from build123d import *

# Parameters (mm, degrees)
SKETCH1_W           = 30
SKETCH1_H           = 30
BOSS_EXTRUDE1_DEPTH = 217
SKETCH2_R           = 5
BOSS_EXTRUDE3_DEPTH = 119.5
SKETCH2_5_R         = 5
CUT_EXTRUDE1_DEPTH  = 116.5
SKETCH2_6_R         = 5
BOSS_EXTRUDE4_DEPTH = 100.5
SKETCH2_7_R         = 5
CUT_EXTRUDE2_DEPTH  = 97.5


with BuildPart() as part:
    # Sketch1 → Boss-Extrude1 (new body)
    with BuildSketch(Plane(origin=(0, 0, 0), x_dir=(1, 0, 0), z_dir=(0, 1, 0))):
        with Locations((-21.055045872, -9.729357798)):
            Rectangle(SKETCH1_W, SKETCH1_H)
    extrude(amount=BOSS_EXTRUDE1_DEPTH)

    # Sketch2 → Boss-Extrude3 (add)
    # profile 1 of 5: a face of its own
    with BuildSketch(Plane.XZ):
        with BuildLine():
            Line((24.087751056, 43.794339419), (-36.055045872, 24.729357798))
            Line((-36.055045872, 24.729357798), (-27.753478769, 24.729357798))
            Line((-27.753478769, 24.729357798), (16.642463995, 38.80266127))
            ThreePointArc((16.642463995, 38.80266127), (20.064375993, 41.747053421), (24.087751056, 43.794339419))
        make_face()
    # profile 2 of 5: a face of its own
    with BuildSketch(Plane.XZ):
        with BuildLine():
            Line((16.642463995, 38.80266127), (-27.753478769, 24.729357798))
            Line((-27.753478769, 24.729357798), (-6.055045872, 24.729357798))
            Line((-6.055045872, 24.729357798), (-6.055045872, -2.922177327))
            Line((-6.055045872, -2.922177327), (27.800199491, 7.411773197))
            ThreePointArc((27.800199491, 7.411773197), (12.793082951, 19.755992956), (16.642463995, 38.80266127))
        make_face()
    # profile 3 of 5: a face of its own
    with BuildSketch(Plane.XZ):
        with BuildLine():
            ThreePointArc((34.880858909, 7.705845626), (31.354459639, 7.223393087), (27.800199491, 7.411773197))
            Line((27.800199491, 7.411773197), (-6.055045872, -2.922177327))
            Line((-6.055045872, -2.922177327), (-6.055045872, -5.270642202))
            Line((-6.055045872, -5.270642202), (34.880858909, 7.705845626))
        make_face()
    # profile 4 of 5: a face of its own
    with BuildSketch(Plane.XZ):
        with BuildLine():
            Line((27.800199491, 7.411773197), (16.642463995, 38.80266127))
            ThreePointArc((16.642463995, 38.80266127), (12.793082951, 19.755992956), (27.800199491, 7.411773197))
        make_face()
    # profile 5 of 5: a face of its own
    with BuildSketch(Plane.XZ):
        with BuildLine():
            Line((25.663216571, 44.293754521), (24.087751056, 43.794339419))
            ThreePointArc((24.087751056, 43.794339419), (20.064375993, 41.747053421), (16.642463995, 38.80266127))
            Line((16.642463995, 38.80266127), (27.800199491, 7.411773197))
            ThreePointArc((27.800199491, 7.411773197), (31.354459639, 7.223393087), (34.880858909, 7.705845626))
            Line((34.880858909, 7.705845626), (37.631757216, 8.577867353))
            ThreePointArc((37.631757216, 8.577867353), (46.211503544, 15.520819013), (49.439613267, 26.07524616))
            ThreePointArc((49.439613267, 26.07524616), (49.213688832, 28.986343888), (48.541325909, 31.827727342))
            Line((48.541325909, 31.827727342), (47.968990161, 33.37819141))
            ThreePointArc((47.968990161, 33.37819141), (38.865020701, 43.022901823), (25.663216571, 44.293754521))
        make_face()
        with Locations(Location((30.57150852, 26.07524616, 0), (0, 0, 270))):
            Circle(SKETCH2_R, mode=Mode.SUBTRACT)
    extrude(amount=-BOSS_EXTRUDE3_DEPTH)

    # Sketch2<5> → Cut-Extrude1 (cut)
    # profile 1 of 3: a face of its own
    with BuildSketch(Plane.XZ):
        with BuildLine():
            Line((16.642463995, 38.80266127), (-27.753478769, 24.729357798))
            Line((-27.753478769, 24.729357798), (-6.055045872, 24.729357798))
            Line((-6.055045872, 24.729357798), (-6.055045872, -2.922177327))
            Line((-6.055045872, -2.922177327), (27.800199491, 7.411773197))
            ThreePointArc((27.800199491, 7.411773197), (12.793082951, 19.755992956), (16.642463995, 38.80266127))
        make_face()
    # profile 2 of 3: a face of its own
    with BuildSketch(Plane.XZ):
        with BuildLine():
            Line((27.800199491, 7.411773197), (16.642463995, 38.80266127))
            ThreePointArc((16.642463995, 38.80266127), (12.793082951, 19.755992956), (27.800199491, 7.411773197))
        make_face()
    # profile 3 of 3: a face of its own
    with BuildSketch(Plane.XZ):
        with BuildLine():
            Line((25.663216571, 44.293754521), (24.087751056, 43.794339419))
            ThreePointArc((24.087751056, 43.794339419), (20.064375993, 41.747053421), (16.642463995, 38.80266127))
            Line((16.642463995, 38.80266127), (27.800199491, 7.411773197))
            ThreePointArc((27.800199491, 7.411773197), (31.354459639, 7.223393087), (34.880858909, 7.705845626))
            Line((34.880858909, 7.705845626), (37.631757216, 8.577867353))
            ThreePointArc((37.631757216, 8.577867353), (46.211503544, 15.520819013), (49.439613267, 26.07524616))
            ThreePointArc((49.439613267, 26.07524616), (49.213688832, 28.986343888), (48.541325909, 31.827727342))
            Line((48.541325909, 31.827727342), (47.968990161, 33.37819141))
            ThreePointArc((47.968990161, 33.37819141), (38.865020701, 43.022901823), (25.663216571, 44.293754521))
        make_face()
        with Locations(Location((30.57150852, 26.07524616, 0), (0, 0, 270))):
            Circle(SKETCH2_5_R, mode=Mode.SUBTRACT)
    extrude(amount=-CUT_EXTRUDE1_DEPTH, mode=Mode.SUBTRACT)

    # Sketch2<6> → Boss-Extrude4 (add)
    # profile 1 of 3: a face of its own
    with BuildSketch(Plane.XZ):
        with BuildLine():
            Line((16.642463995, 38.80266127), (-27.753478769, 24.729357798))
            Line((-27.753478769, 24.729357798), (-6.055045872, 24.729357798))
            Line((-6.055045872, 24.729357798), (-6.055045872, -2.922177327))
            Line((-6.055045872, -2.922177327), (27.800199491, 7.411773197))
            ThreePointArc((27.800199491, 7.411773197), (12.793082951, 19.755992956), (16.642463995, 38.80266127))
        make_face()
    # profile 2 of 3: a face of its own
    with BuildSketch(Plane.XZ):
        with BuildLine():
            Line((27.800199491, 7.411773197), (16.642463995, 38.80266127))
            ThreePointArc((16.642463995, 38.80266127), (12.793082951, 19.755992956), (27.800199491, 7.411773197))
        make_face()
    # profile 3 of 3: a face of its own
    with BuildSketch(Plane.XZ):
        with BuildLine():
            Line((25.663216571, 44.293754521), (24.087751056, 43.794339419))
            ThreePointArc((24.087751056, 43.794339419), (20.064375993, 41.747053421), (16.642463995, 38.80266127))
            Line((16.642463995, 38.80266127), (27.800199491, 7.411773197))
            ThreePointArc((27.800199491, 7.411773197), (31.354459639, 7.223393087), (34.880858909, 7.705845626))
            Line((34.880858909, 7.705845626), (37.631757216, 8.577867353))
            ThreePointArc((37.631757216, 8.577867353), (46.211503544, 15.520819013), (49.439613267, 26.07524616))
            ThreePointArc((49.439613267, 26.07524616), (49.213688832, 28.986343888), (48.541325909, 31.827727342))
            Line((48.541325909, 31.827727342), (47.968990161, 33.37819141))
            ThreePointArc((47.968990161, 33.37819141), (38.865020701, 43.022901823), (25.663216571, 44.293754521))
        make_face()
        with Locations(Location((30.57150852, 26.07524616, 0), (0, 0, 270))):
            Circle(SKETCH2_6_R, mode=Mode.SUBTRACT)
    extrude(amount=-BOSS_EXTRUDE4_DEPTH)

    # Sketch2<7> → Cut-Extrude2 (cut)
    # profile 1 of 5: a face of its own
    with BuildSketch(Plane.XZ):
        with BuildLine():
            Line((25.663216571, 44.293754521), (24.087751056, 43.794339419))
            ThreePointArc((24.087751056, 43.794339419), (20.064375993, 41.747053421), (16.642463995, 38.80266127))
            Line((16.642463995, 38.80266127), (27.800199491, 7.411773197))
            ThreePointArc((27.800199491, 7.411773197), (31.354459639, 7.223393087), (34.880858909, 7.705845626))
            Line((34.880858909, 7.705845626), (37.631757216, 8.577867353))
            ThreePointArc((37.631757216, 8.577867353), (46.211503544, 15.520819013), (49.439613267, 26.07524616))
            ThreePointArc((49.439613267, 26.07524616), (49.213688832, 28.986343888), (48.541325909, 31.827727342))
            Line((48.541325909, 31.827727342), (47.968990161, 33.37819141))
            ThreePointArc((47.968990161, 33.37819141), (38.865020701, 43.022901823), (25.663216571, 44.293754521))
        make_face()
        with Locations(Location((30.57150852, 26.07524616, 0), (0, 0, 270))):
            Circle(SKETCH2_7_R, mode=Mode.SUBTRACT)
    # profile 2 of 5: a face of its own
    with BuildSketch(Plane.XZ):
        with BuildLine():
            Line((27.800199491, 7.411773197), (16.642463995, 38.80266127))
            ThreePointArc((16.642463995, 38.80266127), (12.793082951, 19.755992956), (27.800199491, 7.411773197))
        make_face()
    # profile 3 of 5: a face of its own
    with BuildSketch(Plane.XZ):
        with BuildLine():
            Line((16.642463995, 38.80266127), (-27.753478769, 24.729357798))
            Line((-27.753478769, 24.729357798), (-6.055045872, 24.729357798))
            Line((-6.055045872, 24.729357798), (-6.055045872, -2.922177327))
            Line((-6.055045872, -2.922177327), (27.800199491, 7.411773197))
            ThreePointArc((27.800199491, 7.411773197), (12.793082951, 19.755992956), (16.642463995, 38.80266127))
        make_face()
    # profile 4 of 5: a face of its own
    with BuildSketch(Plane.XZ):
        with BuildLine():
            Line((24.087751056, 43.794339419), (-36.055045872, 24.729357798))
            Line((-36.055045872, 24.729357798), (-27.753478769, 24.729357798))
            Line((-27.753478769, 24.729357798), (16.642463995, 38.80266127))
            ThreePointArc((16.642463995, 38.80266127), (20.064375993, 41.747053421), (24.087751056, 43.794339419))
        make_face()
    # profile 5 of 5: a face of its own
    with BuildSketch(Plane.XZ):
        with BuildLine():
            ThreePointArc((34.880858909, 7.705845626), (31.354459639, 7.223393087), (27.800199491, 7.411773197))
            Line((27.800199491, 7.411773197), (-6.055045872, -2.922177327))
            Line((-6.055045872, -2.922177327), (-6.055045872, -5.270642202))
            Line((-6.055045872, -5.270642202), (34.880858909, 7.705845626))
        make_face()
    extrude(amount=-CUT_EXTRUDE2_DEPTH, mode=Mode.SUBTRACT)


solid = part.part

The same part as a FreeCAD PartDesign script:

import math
import FreeCAD as App
import Part
import Sketcher

V = App.Vector
Q = App.Units.Quantity


def add_polygon(sketch, points):
    """Adds a closed chain of lines whose ends are joined by coincident constraints."""
    first, n = sketch.GeometryCount, len(points)
    for a, b in zip(points, points[1:] + points[:1]):
        sketch.addGeometry(Part.LineSegment(App.Vector(*a, 0), App.Vector(*b, 0)), False)
    for i in range(n):
        sketch.addConstraint(Sketcher.Constraint("Coincident", first + i, 2, first + (i + 1) % n, 1))

doc = App.newDocument("Part")
body = doc.addObject("PartDesign::Body", "Body")

sketch1 = body.newObject("Sketcher::SketchObject", "Sketch")
sketch1.AttachmentSupport = (doc.getObject("XZ_Plane"), [""])
sketch1.MapMode = "FlatFace"
add_polygon(sketch1, [(-36, -5), (-36, 25), (-6, 25), (-6, -5)])
sketch1.addConstraint([
    Sketcher.Constraint("Vertical", 0),
    Sketcher.Constraint("Horizontal", 1),
    Sketcher.Constraint("Vertical", 2),
    Sketcher.Constraint("Horizontal", 3),
    Sketcher.Constraint("Equal", 3, 0),
    Sketcher.Constraint("DistanceX", 1, 1, 1, 2, Q("30 mm")),
    Sketcher.Constraint("DistanceX", 0, 2, -1, 1, Q("36.055046 mm")),
    Sketcher.Constraint("DistanceY", -1, 1, 0, 2, Q("24.729358 mm")),
])
pad1 = body.newObject("PartDesign::Pad", "Pad")
pad1.Profile = sketch1
pad1.Length = 217
pad1.Reversed = True

sketch2 = body.newObject("Sketcher::SketchObject", "Sketch001")
sketch2.AttachmentSupport = (doc.getObject("XZ_Plane"), [""])
sketch2.MapMode = "FlatFace"
sketch2.addGeometry([
    Part.LineSegment(V(24.1, 43.8, 0), V(-36.1, 24.7, 0)),
    Part.LineSegment(V(-36.1, 24.7, 0), V(-6.1, 24.7, 0)),
    Part.LineSegment(V(-6.1, 24.7, 0), V(-6.1, -5.3, 0)),
    Part.LineSegment(V(-6.1, -5.3, 0), V(34.9, 7.7, 0)),
    Part.LineSegment(V(34.9, 7.7, 0), V(37.6, 8.6, 0)),
    Part.ArcOfCircle(Part.Circle(V(30.6, 26.1, 0), V(0, 0, 1), 18.9), math.radians(-68), math.radians(0)),
    Part.ArcOfCircle(Part.Circle(V(30.6, 26.1, 0), V(0, 0, 1), 18.9), math.radians(0), math.radians(17.75)),
    Part.LineSegment(V(48.5, 31.8, 0), V(48, 33.4, 0)),
    Part.ArcOfCircle(Part.Circle(V(30.6, 26.1, 0), V(0, 0, 1), 18.9), math.radians(23), math.radians(105)),
    Part.LineSegment(V(25.7, 44.3, 0), V(24.1, 43.8, 0)),
    Part.Circle(V(30.6, 26.1, 0), V(0, 0, 1), 5),
], False)
sketch2.addConstraint([
    Sketcher.Constraint("Coincident", 0, 2, 1, 1),
    Sketcher.Constraint("Coincident", 1, 2, 2, 1),
    Sketcher.Constraint("Coincident", 2, 2, 3, 1),
    Sketcher.Constraint("Coincident", 3, 2, 4, 1),
    Sketcher.Constraint("Coincident", 4, 2, 5, 1),
    Sketcher.Constraint("Tangent", 5, 2, 6, 1),
    Sketcher.Constraint("Coincident", 6, 2, 7, 1),
    Sketcher.Constraint("Coincident", 7, 2, 8, 1),
    Sketcher.Constraint("Coincident", 8, 2, 9, 1),
    Sketcher.Constraint("Coincident", 9, 2, 0, 1),
    Sketcher.Constraint("Horizontal", 1),
    Sketcher.Constraint("Vertical", 2),
    Sketcher.Constraint("Coincident", 8, 3, 5, 3),
    Sketcher.Constraint("Coincident", 10, 3, 5, 3),
    Sketcher.Constraint("Equal", 5, 6),
    Sketcher.Constraint("Equal", 6, 8),
    Sketcher.Constraint("Parallel", 0, 3),
    Sketcher.Constraint("Parallel", 3, 4),
    Sketcher.Constraint("Parallel", 4, 9),
    Sketcher.Constraint("Horizontal", 10, 3, 5, 2),
    Sketcher.Constraint("Equal", 1, 2),
    Sketcher.Constraint("Equal", 7, 9),
    Sketcher.Constraint("Diameter", 10, Q("10 mm")),
    Sketcher.Constraint("DistanceX", 1, 1, 1, 2, Q("30 mm")),
    Sketcher.Constraint("Radius", 5, Q("18.868105 mm")),
    Sketcher.Constraint("DistanceY", 3, 2, 6, 3, Q("18.369401 mm")),
    Sketcher.Constraint("DistanceX", 3, 2, 4, 2, Q("2.750898 mm")),
    Sketcher.Constraint("Distance", 0, Q("63.09223 mm")),
    Sketcher.Constraint("DistanceX", -1, 1, 5, 3, Q("30.571509 mm")),
    Sketcher.Constraint("DistanceX", -1, 1, 3, 2, Q("34.880859 mm")),
    Sketcher.Constraint("DistanceX", -1, 1, 7, 2, Q("47.96899 mm")),
    Sketcher.Constraint("DistanceY", -1, 1, 7, 2, Q("33.378191 mm")),
    Sketcher.Constraint("DistanceX", -1, 1, 9, 2, Q("24.087751 mm")),
])
pad2 = body.newObject("PartDesign::Pad", "Pad001")
pad2.Profile = sketch2
pad2.Length = 119.5
pad2.Reversed = True

sketch3 = body.newObject("Sketcher::SketchObject", "Sketch002")
sketch3.AttachmentSupport = (doc.getObject("XZ_Plane"), [""])
sketch3.MapMode = "FlatFace"
sketch3.addGeometry([
    Part.LineSegment(V(16.6, 38.8, 0), V(-27.8, 24.7, 0)),
    Part.LineSegment(V(-27.8, 24.7, 0), V(-6.1, 24.7, 0)),
    Part.LineSegment(V(-6.1, 24.7, 0), V(-6.1, -2.9, 0)),
    Part.LineSegment(V(-6.1, -2.9, 0), V(27.8, 7.4, 0)),
    Part.ArcOfCircle(Part.Circle(V(30.6, 26.1, 0), V(0, 0, 1), 18.9), math.radians(-98), math.radians(-77)),
    Part.LineSegment(V(34.9, 7.7, 0), V(37.6, 8.6, 0)),
    Part.ArcOfCircle(Part.Circle(V(30.6, 26.1, 0), V(0, 0, 1), 18.9), math.radians(-68), math.radians(0)),
    Part.ArcOfCircle(Part.Circle(V(30.6, 26.1, 0), V(0, 0, 1), 18.9), math.radians(0), math.radians(17.75)),
    Part.LineSegment(V(48.5, 31.8, 0), V(48, 33.4, 0)),
    Part.ArcOfCircle(Part.Circle(V(30.6, 26.1, 0), V(0, 0, 1), 18.9), math.radians(23), math.radians(105)),
    Part.LineSegment(V(25.7, 44.3, 0), V(24.1, 43.8, 0)),
    Part.ArcOfCircle(Part.Circle(V(30.6, 26.1, 0), V(0, 0, 1), 18.9), math.radians(110), math.radians(138)),
    Part.Circle(V(30.6, 26.1, 0), V(0, 0, 1), 5),
], False)
sketch3.addConstraint([
    Sketcher.Constraint("Coincident", 0, 2, 1, 1),
    Sketcher.Constraint("Coincident", 1, 2, 2, 1),
    Sketcher.Constraint("Coincident", 2, 2, 3, 1),
    Sketcher.Constraint("Coincident", 3, 2, 4, 1),
    Sketcher.Constraint("Coincident", 4, 2, 5, 1),
    Sketcher.Constraint("Coincident", 5, 2, 6, 1),
    Sketcher.Constraint("Tangent", 6, 2, 7, 1),
    Sketcher.Constraint("Coincident", 7, 2, 8, 1),
    Sketcher.Constraint("Coincident", 8, 2, 9, 1),
    Sketcher.Constraint("Coincident", 9, 2, 10, 1),
    Sketcher.Constraint("Coincident", 10, 2, 11, 1),
    Sketcher.Constraint("Coincident", 11, 2, 0, 1),
    Sketcher.Constraint("Horizontal", 1),
    Sketcher.Constraint("Vertical", 2),
    Sketcher.Constraint("Coincident", 6, 3, 4, 3),
    Sketcher.Constraint("Coincident", 9, 3, 4, 3),
    Sketcher.Constraint("Coincident", 11, 3, 4, 3),
    Sketcher.Constraint("Coincident", 12, 3, 4, 3),
    Sketcher.Constraint("Equal", 4, 6),
    Sketcher.Constraint("Equal", 6, 7),
    Sketcher.Constraint("Equal", 7, 9),
    Sketcher.Constraint("Equal", 9, 11),
    Sketcher.Constraint("Parallel", 0, 5),
    Sketcher.Constraint("Parallel", 5, 10),
    Sketcher.Constraint("Horizontal", 12, 3, 6, 2),
    Sketcher.Constraint("Equal", 8, 10),
    Sketcher.Constraint("Diameter", 12, Q("10 mm")),
    Sketcher.Constraint("Radius", 4, Q("18.868105 mm")),
    Sketcher.Constraint("DistanceX", -1, 1, 3, 2, Q("27.800199 mm")),
    Sketcher.Constraint("DistanceY", 4, 2, 7, 3, Q("18.369401 mm")),
    Sketcher.Constraint("DistanceX", 4, 2, 5, 2, Q("2.750898 mm")),
    Sketcher.Constraint("Distance", 3, Q("35.39729 mm")),
    Sketcher.Constraint("DistanceX", 1, 1, 1, 2, Q("21.698433 mm")),
    Sketcher.Constraint("DistanceY", 2, 2, 2, 1, Q("27.651535 mm")),
    Sketcher.Constraint("DistanceX", -1, 1, 4, 3, Q("30.571509 mm")),
    Sketcher.Constraint("DistanceX", 0, 2, -1, 1, Q("27.753479 mm")),
    Sketcher.Constraint("DistanceX", -1, 1, 8, 2, Q("47.96899 mm")),
    Sketcher.Constraint("DistanceY", -1, 1, 8, 2, Q("33.378191 mm")),
    Sketcher.Constraint("DistanceX", -1, 1, 10, 2, Q("24.087751 mm")),
])
pocket1 = body.newObject("PartDesign::Pocket", "Pocket")
pocket1.Profile = sketch3
pocket1.Length = 116.5

sketch4 = body.newObject("Sketcher::SketchObject", "Sketch003")
sketch4.AttachmentSupport = (doc.getObject("XZ_Plane"), [""])
sketch4.MapMode = "FlatFace"
sketch4.addGeometry([
    Part.LineSegment(V(16.6, 38.8, 0), V(-27.8, 24.7, 0)),
    Part.LineSegment(V(-27.8, 24.7, 0), V(-6.1, 24.7, 0)),
    Part.LineSegment(V(-6.1, 24.7, 0), V(-6.1, -2.9, 0)),
    Part.LineSegment(V(-6.1, -2.9, 0), V(27.8, 7.4, 0)),
    Part.ArcOfCircle(Part.Circle(V(30.6, 26.1, 0), V(0, 0, 1), 18.9), math.radians(-98), math.radians(-77)),
    Part.LineSegment(V(34.9, 7.7, 0), V(37.6, 8.6, 0)),
    Part.ArcOfCircle(Part.Circle(V(30.6, 26.1, 0), V(0, 0, 1), 18.9), math.radians(-68), math.radians(0)),
    Part.ArcOfCircle(Part.Circle(V(30.6, 26.1, 0), V(0, 0, 1), 18.9), math.radians(0), math.radians(17.75)),
    Part.LineSegment(V(48.5, 31.8, 0), V(48, 33.4, 0)),
    Part.ArcOfCircle(Part.Circle(V(30.6, 26.1, 0), V(0, 0, 1), 18.9), math.radians(23), math.radians(105)),
    Part.LineSegment(V(25.7, 44.3, 0), V(24.1, 43.8, 0)),
    Part.ArcOfCircle(Part.Circle(V(30.6, 26.1, 0), V(0, 0, 1), 18.9), math.radians(110), math.radians(138)),
    Part.Circle(V(30.6, 26.1, 0), V(0, 0, 1), 5),
], False)
sketch4.addConstraint([
    Sketcher.Constraint("Coincident", 0, 2, 1, 1),
    Sketcher.Constraint("Coincident", 1, 2, 2, 1),
    Sketcher.Constraint("Coincident", 2, 2, 3, 1),
    Sketcher.Constraint("Coincident", 3, 2, 4, 1),
    Sketcher.Constraint("Coincident", 4, 2, 5, 1),
    Sketcher.Constraint("Coincident", 5, 2, 6, 1),
    Sketcher.Constraint("Tangent", 6, 2, 7, 1),
    Sketcher.Constraint("Coincident", 7, 2, 8, 1),
    Sketcher.Constraint("Coincident", 8, 2, 9, 1),
    Sketcher.Constraint("Coincident", 9, 2, 10, 1),
    Sketcher.Constraint("Coincident", 10, 2, 11, 1),
    Sketcher.Constraint("Coincident", 11, 2, 0, 1),
    Sketcher.Constraint("Horizontal", 1),
    Sketcher.Constraint("Vertical", 2),
    Sketcher.Constraint("Coincident", 6, 3, 4, 3),
    Sketcher.Constraint("Coincident", 9, 3, 4, 3),
    Sketcher.Constraint("Coincident", 11, 3, 4, 3),
    Sketcher.Constraint("Coincident", 12, 3, 4, 3),
    Sketcher.Constraint("Equal", 4, 6),
    Sketcher.Constraint("Equal", 6, 7),
    Sketcher.Constraint("Equal", 7, 9),
    Sketcher.Constraint("Equal", 9, 11),
    Sketcher.Constraint("Parallel", 0, 5),
    Sketcher.Constraint("Parallel", 5, 10),
    Sketcher.Constraint("Horizontal", 12, 3, 6, 2),
    Sketcher.Constraint("Equal", 8, 10),
    Sketcher.Constraint("Diameter", 12, Q("10 mm")),
    Sketcher.Constraint("Radius", 4, Q("18.868105 mm")),
    Sketcher.Constraint("DistanceX", -1, 1, 3, 2, Q("27.800199 mm")),
    Sketcher.Constraint("DistanceY", 4, 2, 7, 3, Q("18.369401 mm")),
    Sketcher.Constraint("DistanceX", 4, 2, 5, 2, Q("2.750898 mm")),
    Sketcher.Constraint("Distance", 3, Q("35.39729 mm")),
    Sketcher.Constraint("DistanceX", 1, 1, 1, 2, Q("21.698433 mm")),
    Sketcher.Constraint("DistanceY", 2, 2, 2, 1, Q("27.651535 mm")),
    Sketcher.Constraint("DistanceX", -1, 1, 4, 3, Q("30.571509 mm")),
    Sketcher.Constraint("DistanceX", 0, 2, -1, 1, Q("27.753479 mm")),
    Sketcher.Constraint("DistanceX", -1, 1, 8, 2, Q("47.96899 mm")),
    Sketcher.Constraint("DistanceY", -1, 1, 8, 2, Q("33.378191 mm")),
    Sketcher.Constraint("DistanceX", -1, 1, 10, 2, Q("24.087751 mm")),
])
pad3 = body.newObject("PartDesign::Pad", "Pad002")
pad3.Profile = sketch4
pad3.Length = 100.5
pad3.Reversed = True

sketch5 = body.newObject("Sketcher::SketchObject", "Sketch004")
sketch5.AttachmentSupport = (doc.getObject("XZ_Plane"), [""])
sketch5.MapMode = "FlatFace"
sketch5.addGeometry([
    Part.LineSegment(V(25.7, 44.3, 0), V(24.1, 43.8, 0)),
    Part.LineSegment(V(24.1, 43.8, 0), V(-36.1, 24.7, 0)),
    Part.LineSegment(V(-36.1, 24.7, 0), V(-6.1, 24.7, 0)),
    Part.LineSegment(V(-6.1, 24.7, 0), V(-6.1, -5.3, 0)),
    Part.LineSegment(V(-6.1, -5.3, 0), V(34.9, 7.7, 0)),
    Part.LineSegment(V(34.9, 7.7, 0), V(37.6, 8.6, 0)),
    Part.ArcOfCircle(Part.Circle(V(30.6, 26.1, 0), V(0, 0, 1), 18.9), math.radians(-68), math.radians(0)),
    Part.ArcOfCircle(Part.Circle(V(30.6, 26.1, 0), V(0, 0, 1), 18.9), math.radians(0), math.radians(17.75)),
    Part.LineSegment(V(48.5, 31.8, 0), V(48, 33.4, 0)),
    Part.ArcOfCircle(Part.Circle(V(30.6, 26.1, 0), V(0, 0, 1), 18.9), math.radians(23), math.radians(105)),
    Part.Circle(V(30.6, 26.1, 0), V(0, 0, 1), 5),
], False)
sketch5.addConstraint([
    Sketcher.Constraint("Coincident", 0, 2, 1, 1),
    Sketcher.Constraint("Coincident", 1, 2, 2, 1),
    Sketcher.Constraint("Coincident", 2, 2, 3, 1),
    Sketcher.Constraint("Coincident", 3, 2, 4, 1),
    Sketcher.Constraint("Coincident", 4, 2, 5, 1),
    Sketcher.Constraint("Coincident", 5, 2, 6, 1),
    Sketcher.Constraint("Tangent", 6, 2, 7, 1),
    Sketcher.Constraint("Coincident", 7, 2, 8, 1),
    Sketcher.Constraint("Coincident", 8, 2, 9, 1),
    Sketcher.Constraint("Coincident", 9, 2, 0, 1),
    Sketcher.Constraint("Horizontal", 2),
    Sketcher.Constraint("Vertical", 3),
    Sketcher.Constraint("Coincident", 9, 3, 6, 3),
    Sketcher.Constraint("Coincident", 10, 3, 6, 3),
    Sketcher.Constraint("Equal", 6, 7),
    Sketcher.Constraint("Equal", 7, 9),
    Sketcher.Constraint("Parallel", 0, 1),
    Sketcher.Constraint("Parallel", 1, 4),
    Sketcher.Constraint("Parallel", 4, 5),
    Sketcher.Constraint("Horizontal", 10, 3, 6, 2),
    Sketcher.Constraint("Equal", 2, 3),
    Sketcher.Constraint("Equal", 0, 8),
    Sketcher.Constraint("Diameter", 10, Q("10 mm")),
    Sketcher.Constraint("DistanceX", 2, 1, 2, 2, Q("30 mm")),
    Sketcher.Constraint("Radius", 6, Q("18.868105 mm")),
    Sketcher.Constraint("DistanceY", 4, 2, 7, 3, Q("18.369401 mm")),
    Sketcher.Constraint("DistanceX", 4, 2, 5, 2, Q("2.750898 mm")),
    Sketcher.Constraint("Distance", 1, Q("63.09223 mm")),
    Sketcher.Constraint("DistanceX", -1, 1, 6, 3, Q("30.571509 mm")),
    Sketcher.Constraint("DistanceX", -1, 1, 0, 2, Q("24.087751 mm")),
    Sketcher.Constraint("DistanceY", -1, 1, 0, 2, Q("43.794339 mm")),
    Sketcher.Constraint("DistanceX", -1, 1, 4, 2, Q("34.880859 mm")),
    Sketcher.Constraint("DistanceX", -1, 1, 8, 2, Q("47.96899 mm")),
])
pocket2 = body.newObject("PartDesign::Pocket", "Pocket001")
pocket2.Profile = sketch5
pocket2.Length = 97.5

doc.recompute()
